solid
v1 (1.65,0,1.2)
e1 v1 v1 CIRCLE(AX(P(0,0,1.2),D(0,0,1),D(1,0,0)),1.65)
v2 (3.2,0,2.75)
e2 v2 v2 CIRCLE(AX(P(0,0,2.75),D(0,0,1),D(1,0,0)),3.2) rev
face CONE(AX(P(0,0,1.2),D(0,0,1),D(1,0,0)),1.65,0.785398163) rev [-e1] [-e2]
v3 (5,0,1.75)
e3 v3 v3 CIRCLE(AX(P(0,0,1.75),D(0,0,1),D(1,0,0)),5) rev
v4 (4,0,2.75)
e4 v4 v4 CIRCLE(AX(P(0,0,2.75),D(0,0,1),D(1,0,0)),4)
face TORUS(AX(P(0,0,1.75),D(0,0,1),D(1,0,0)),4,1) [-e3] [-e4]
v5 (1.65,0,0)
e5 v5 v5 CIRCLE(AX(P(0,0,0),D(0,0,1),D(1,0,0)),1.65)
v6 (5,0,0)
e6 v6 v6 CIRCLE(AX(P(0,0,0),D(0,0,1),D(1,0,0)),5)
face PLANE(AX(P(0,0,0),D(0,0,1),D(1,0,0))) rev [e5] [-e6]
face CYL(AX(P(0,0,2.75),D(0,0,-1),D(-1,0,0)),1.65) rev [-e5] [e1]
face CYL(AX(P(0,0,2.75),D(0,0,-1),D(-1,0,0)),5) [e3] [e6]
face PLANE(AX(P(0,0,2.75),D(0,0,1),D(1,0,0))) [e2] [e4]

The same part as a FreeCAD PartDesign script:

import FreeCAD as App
import Part
import Sketcher
from FreeCAD import Vector
Q = App.Units.Quantity


def edges_at(feature, points):
    """Names of the edges that pass closest to the given points."""
    edges = feature.Shape.Edges
    near = lambda p: min(range(len(edges)), key=lambda i: edges[i].distToShape(Part.Vertex(*p))[0])
    return sorted({f"Edge{near(p) + 1}" for p in points})

doc = App.newDocument("Part")
body = doc.addObject("PartDesign::Body", "Body")

# Sketch on XY plane
sketch1 = doc.addObject("Sketcher::SketchObject", "Sketch")
body.addObject(sketch1)
sketch1.AttachmentSupport = (doc.XY_Plane, [""])
sketch1.MapMode = "FlatFace"
sketch1.addGeometry(Part.Circle(Vector(0, 0, 0), Vector(0, 0, 1), 5), False)
sketch1.addGeometry(Part.Circle(Vector(0, 0, 0), Vector(0, 0, 1), 1.6), False)
sketch1.addConstraint(Sketcher.Constraint("Coincident", 0, 3, -1, 1))
sketch1.addConstraint(Sketcher.Constraint("Coincident", 1, 3, -1, 1))
sketch1.addConstraint(Sketcher.Constraint("Diameter", 0, Q("10 mm")))
sketch1.addConstraint(Sketcher.Constraint("Diameter", 1, Q("3.3 mm")))
pad1 = doc.addObject("PartDesign::Pad", "Pad")
body.addObject(pad1)
pad1.Profile = sketch1
pad1.Length = 2.75
doc.recompute()

chamfer = doc.addObject("PartDesign::Chamfer", "Chamfer")
body.addObject(chamfer)
chamfer.Base = (pad1, edges_at(pad1, [(-1.65, 0, 2.75)]))
chamfer.Size = 1.55
doc.recompute()

fillet = doc.addObject("PartDesign::Fillet", "Fillet")
body.addObject(fillet)
fillet.Base = (chamfer, edges_at(chamfer, [(-5, 0, 2.75)]))
fillet.Radius = 1

doc.recompute()
